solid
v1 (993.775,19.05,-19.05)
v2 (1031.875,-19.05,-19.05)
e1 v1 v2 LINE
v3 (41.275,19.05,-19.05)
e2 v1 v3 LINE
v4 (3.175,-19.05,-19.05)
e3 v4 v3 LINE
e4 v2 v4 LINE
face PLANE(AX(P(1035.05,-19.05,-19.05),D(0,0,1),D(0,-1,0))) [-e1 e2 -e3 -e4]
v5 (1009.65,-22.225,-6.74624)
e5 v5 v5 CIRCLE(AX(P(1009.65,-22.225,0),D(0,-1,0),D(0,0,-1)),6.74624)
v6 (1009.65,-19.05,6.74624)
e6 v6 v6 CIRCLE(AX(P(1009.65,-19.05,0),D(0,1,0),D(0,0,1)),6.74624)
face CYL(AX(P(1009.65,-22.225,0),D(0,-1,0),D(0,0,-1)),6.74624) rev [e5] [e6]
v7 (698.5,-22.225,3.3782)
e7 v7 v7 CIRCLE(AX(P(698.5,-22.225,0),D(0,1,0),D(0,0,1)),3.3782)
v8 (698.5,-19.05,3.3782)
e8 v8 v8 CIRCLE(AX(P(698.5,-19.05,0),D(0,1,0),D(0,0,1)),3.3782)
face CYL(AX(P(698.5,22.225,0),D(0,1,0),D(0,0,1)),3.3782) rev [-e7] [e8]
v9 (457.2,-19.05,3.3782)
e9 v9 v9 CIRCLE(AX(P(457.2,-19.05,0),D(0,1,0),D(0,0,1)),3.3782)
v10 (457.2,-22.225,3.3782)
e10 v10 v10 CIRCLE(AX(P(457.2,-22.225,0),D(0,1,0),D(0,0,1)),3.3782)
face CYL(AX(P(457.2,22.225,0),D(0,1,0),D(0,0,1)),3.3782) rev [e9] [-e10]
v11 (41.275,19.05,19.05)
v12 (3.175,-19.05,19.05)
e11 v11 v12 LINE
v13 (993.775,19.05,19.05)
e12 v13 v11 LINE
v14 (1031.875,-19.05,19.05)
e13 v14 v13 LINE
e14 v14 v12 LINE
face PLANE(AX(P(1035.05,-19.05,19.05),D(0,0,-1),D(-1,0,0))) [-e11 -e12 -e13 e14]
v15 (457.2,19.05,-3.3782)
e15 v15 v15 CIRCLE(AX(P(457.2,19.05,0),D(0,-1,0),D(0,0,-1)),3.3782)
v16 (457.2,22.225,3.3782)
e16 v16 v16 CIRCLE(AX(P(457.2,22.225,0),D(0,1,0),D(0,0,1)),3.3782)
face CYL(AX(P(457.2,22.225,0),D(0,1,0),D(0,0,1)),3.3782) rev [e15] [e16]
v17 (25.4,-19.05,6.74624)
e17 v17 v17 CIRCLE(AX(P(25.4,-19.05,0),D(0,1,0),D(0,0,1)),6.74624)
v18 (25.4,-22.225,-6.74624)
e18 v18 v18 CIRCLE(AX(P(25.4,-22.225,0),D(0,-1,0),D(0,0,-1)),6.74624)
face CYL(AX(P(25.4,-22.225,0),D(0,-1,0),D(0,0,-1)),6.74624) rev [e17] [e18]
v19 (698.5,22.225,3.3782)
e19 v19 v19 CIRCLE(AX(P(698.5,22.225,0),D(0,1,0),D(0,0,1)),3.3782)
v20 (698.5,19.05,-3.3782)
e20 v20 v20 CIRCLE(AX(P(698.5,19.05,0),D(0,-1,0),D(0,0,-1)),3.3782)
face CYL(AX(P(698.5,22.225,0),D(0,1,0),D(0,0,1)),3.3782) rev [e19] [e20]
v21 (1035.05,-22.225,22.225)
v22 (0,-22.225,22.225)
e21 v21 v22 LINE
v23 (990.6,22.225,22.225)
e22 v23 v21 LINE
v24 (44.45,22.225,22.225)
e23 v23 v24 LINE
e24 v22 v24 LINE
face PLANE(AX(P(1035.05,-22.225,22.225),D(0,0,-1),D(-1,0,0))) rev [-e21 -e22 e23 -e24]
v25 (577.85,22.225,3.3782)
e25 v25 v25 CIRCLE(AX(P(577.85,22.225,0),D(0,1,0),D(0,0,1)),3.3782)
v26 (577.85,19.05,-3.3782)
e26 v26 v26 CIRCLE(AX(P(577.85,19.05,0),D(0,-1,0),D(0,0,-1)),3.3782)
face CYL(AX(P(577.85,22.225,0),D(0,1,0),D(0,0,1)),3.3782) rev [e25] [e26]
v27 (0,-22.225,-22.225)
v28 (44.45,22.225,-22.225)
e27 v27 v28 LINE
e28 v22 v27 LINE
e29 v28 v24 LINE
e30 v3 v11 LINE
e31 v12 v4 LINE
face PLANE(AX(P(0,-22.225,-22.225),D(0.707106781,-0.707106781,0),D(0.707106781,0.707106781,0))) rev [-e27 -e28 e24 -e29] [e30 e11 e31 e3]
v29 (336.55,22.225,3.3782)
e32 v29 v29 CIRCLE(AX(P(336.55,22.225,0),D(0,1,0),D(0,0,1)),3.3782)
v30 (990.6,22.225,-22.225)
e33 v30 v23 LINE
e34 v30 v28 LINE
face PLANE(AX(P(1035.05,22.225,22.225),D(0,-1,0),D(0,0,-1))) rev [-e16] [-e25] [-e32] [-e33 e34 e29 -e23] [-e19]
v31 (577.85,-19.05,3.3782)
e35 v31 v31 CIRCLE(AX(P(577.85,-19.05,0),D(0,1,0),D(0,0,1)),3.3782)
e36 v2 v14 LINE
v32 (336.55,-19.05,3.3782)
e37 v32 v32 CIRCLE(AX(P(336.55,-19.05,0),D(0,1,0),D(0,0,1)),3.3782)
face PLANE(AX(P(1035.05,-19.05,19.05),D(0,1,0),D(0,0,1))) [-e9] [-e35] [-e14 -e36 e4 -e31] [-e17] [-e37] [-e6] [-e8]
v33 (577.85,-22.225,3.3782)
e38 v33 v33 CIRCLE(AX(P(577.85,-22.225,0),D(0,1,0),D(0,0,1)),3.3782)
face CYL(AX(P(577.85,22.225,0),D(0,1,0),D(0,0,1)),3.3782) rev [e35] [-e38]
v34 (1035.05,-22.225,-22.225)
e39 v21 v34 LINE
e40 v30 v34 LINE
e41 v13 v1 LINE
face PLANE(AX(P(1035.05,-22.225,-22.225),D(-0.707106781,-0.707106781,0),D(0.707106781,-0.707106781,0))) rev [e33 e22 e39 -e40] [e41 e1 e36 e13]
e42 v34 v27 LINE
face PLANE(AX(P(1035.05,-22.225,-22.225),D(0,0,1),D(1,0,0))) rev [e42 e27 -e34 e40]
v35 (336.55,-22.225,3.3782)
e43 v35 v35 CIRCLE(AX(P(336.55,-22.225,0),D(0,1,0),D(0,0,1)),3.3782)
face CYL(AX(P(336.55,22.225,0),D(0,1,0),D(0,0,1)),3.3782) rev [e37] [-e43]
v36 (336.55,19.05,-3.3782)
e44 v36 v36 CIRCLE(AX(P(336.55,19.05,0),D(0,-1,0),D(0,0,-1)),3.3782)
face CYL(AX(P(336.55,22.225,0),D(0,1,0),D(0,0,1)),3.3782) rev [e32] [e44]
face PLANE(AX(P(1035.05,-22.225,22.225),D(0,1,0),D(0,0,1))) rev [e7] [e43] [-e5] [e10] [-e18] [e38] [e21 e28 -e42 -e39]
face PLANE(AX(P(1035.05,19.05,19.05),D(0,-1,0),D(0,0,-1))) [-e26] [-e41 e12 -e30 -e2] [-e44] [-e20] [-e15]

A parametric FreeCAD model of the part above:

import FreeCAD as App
import Part
import Sketcher

V = App.Vector
Q = App.Units.Quantity

doc = App.newDocument("Part")
params = doc.addObject("Spreadsheet::Sheet", "Params")
for row, (alias, value) in enumerate([
    ("sketch1_width", "1.5 in"),
    ("sketch1_width2", "1.75 in"),
    ("pad1_length", "40.75 in"),
    ("sketch2_width", "1.75 in"),
    ("hole_diameter", "0.5312 in"),
    ("sketch4_diameter", "0.266 in"),
    ("hole2_diameter", "0.266 in"),
], start=1):
    params.set(f"A{row}", alias)
    params.set(f"B{row}", "=" + value)
    params.setAlias(f"B{row}", alias)

body = doc.addObject("PartDesign::Body", "Body")

sketch1 = body.newObject("Sketcher::SketchObject", "Sketch")
sketch1.AttachmentSupport = (doc.getObject("YZ_Plane"), [""])
sketch1.MapMode = "FlatFace"
sketch1.addGeometry([
    Part.LineSegment(V(22.225, 22.225, 0), V(-22.225, 22.225, 0)),
    Part.LineSegment(V(-22.225, 22.225, 0), V(-22.225, -22.225, 0)),
    Part.LineSegment(V(-22.225, -22.225, 0), V(22.225, -22.225, 0)),
    Part.LineSegment(V(22.225, -22.225, 0), V(22.225, 22.225, 0)),
    Part.LineSegment(V(-19.05, -19.05, 0), V(-19.05, 19.05, 0)),
    Part.LineSegment(V(-19.05, 19.05, 0), V(19.05, 19.05, 0)),
    Part.LineSegment(V(19.05, 19.05, 0), V(19.05, -19.05, 0)),
    Part.LineSegment(V(19.05, -19.05, 0), V(-19.05, -19.05, 0)),
], False)
sketch1.addConstraint([
    Sketcher.Constraint("Coincident", 0, 2, 1, 1),
    Sketcher.Constraint("Coincident", 1, 2, 2, 1),
    Sketcher.Constraint("Coincident", 2, 2, 3, 1),
    Sketcher.Constraint("Coincident", 3, 2, 0, 1),
    Sketcher.Constraint("Coincident", 4, 2, 5, 1),
    Sketcher.Constraint("Coincident", 5, 2, 6, 1),
    Sketcher.Constraint("Coincident", 6, 2, 7, 1),
    Sketcher.Constraint("Coincident", 7, 2, 4, 1),
    Sketcher.Constraint("Horizontal", 0),
    Sketcher.Constraint("Vertical", 1),
    Sketcher.Constraint("Horizontal", 2),
    Sketcher.Constraint("Vertical", 3),
    Sketcher.Constraint("Vertical", 4),
    Sketcher.Constraint("Horizontal", 5),
    Sketcher.Constraint("Vertical", 6),
    Sketcher.Constraint("Horizontal", 7),
    Sketcher.Constraint("Symmetric", 0, 2, 2, 2, -1, 1),
    Sketcher.Constraint("Symmetric", 4, 2, 6, 2, -1, 1),
    Sketcher.Constraint("Equal", 2, 1),
    Sketcher.Constraint("Equal", 7, 4),
    Sketcher.Constraint("DistanceX", 5, 1, 5, 2, Q("1.5 in")),
    Sketcher.Constraint("DistanceX", 0, 2, 0, 1, Q("1.75 in")),
])
sketch1.setExpression("Constraints[20]", "Params.sketch1_width")
sketch1.setExpression("Constraints[21]", "Params.sketch1_width2")
pad1 = body.newObject("PartDesign::Pad", "Pad")
pad1.Profile = sketch1
pad1.setExpression("Length", "Params.pad1_length")

sketch2 = body.newObject("Sketcher::SketchObject", "Sketch001")
sketch2.AttachmentSupport = (doc.getObject("XY_Plane"), [""])
sketch2.MapMode = "FlatFace"
sketch2.AttachmentOffset = App.Placement(V(0, 0, 0.875 * 25.4), App.Rotation())
sketch2.addGeometry([
    Part.LineSegment(V(0, 22.225, 0), V(0, -22.225, 0)),
    Part.LineSegment(V(0, -22.225, 0), V(44.45, 22.225, 0)),
    Part.LineSegment(V(44.45, 22.225, 0), V(0, 22.225, 0)),
    Part.LineSegment(V(1035.05, 22.225, 0), V(990.6, 22.225, 0)),
    Part.LineSegment(V(990.6, 22.225, 0), V(1035.05, -22.225, 0)),
    Part.LineSegment(V(1035.05, -22.225, 0), V(1035.05, 22.225, 0)),
], False)
sketch2.addConstraint([
    Sketcher.Constraint("Coincident", 0, 2, 1, 1),
    Sketcher.Constraint("Coincident", 1, 2, 2, 1),
    Sketcher.Constraint("Coincident", 2, 2, 0, 1),
    Sketcher.Constraint("Coincident", 3, 2, 4, 1),
    Sketcher.Constraint("Coincident", 4, 2, 5, 1),
    Sketcher.Constraint("Coincident", 5, 2, 3, 1),
    Sketcher.Constraint("Vertical", 0),
    Sketcher.Constraint("Horizontal", 2),
    Sketcher.Constraint("Horizontal", 3),
    Sketcher.Constraint("Vertical", 5),
    Sketcher.Constraint("Symmetric", 0, 2, 2, 2, -1, 1),
    Sketcher.Constraint("Perpendicular", 1, 4),
    Sketcher.Constraint("Horizontal", 2, 2, 3, 2),
    Sketcher.Constraint("Horizontal", 0, 2, 4, 2),
    Sketcher.Constraint("Equal", 2, 3),
    Sketcher.Constraint("DistanceX", -1, 1, 3, 2, Q("39 in")),
    Sketcher.Constraint("DistanceX", 2, 2, 2, 1, Q("1.75 in")),
])
sketch2.setExpression("Constraints[16]", "Params.sketch2_width")
pocket1 = body.newObject("PartDesign::Pocket", "Pocket")
pocket1.Profile = sketch2
pocket1.Type = "ThroughAll"

sketch3 = body.newObject("Sketcher::SketchObject", "Sketch002")
sketch3.AttachmentSupport = (doc.getObject("XZ_Plane"), [""])
sketch3.MapMode = "FlatFace"
sketch3.AttachmentOffset = App.Placement(V(0, 0, 0.875 * 25.4), App.Rotation())
sketch3.addGeometry([
    Part.Circle(V(25.4, 0, 0), V(0, 0, 1), 6.74624),
    Part.Circle(V(1009.65, 0, 0), V(0, 0, 1), 6.74624),
], False)
sketch3.addConstraint([
    Sketcher.Constraint("Equal", 0, 1),
    Sketcher.Constraint("PointOnObject", 0, 3, -1),
    Sketcher.Constraint("PointOnObject", 1, 3, -1),
    Sketcher.Constraint("DistanceX", -1, 1, 0, 3, Q("1 in")),
    Sketcher.Constraint("Diameter", 0, Q("0.5312 in")),
    Sketcher.Constraint("DistanceX", -1, 1, 1, 3, Q("39.75 in")),
])
doc.recompute()
hole = body.newObject("PartDesign::Hole", "Hole")
hole.Profile = sketch3
hole.ThreadType = "None"
hole.setExpression("Diameter", "Params.hole_diameter")
hole.DepthType = "ThroughAll"

sketch4 = body.newObject("Sketcher::SketchObject", "Sketch003")
sketch4.AttachmentSupport = (doc.getObject("XZ_Plane"), [""])
sketch4.MapMode = "FlatFace"
sketch4.AttachmentOffset = App.Placement(V(0, 0, -0.875 * 25.4), App.Rotation())
sketch4.addGeometry([
    Part.Circle(V(336.55, 0, 0), V(0, 0, 1), 3.3782),
    Part.Circle(V(457.2, 0, 0), V(0, 0, 1), 3.3782),
    Part.Circle(V(577.85, 0, 0), V(0, 0, 1), 3.3782),
    Part.Circle(V(698.5, 0, 0), V(0, 0, 1), 3.3782),
], False)
sketch4.addConstraint([
    Sketcher.Constraint("Equal", 0, 1),
    Sketcher.Constraint("Equal", 1, 2),
    Sketcher.Constraint("Equal", 2, 3),
    Sketcher.Constraint("PointOnObject", 0, 3, -1),
    Sketcher.Constraint("PointOnObject", 1, 3, -1),
    Sketcher.Constraint("PointOnObject", 2, 3, -1),
    Sketcher.Constraint("PointOnObject", 3, 3, -1),
    Sketcher.Constraint("Diameter", 0, Q("0.266 in")),
    Sketcher.Constraint("DistanceX", -1, 1, 1, 3, Q("18 in")),
    Sketcher.Constraint("DistanceX", -1, 1, 3, 3, Q("27.5 in")),
    Sketcher.Constraint("DistanceX", 0, 3, 2, 3, Q("9.5 in")),
    Sketcher.Constraint("DistanceX", -1, 1, 0, 3, Q("13.25 in")),
])
sketch4.setExpression("Constraints[7]", "Params.sketch4_diameter")
doc.recompute()
hole2 = body.newObject("PartDesign::Hole", "Hole001")
hole2.Profile = sketch4
hole2.ThreadType = "None"
hole2.setExpression("Diameter", "Params.hole2_diameter")
hole2.DepthType = "ThroughAll"
hole2.Reversed = True

doc.recompute()
